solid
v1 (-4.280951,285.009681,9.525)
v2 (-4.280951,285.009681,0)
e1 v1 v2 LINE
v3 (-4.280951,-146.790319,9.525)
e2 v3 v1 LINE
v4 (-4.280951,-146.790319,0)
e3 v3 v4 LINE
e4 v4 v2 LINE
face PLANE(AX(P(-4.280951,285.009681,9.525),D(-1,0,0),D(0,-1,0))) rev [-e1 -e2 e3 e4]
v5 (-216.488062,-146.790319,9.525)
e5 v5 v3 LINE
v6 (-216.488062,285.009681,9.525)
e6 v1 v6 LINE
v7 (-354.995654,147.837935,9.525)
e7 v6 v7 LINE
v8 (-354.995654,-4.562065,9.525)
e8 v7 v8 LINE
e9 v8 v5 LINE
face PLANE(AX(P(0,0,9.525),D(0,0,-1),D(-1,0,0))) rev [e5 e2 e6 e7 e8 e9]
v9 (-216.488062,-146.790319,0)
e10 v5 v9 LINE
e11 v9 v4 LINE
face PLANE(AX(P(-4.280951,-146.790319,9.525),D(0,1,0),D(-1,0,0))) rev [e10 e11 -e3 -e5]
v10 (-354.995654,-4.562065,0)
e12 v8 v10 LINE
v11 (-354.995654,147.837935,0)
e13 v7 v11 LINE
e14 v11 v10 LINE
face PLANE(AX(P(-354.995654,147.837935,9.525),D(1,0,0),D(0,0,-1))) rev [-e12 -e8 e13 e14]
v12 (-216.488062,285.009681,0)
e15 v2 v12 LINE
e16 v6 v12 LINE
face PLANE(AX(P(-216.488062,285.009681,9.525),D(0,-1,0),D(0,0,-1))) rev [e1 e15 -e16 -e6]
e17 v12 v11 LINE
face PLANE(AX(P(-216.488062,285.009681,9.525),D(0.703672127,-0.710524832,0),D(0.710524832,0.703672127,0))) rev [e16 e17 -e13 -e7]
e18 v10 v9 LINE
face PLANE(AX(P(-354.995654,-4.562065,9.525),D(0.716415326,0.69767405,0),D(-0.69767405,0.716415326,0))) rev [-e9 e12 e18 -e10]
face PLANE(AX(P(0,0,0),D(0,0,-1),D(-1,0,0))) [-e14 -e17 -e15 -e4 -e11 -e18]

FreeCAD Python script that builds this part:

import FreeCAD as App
import Part
import Sketcher
Q = App.Units.Quantity

doc = App.newDocument("Part")
body = doc.addObject("PartDesign::Body", "Body")

# Sketch on XY plane
sketch1 = body.newObject("Sketcher::SketchObject", "Sketch")
sketch1.AttachmentSupport = (doc.getObject("XY_Plane"), [""])
sketch1.MapMode = "FlatFace"
sketch1.addGeometry([
    Part.LineSegment(App.Vector(-216.488062, -146.790319, 0), App.Vector(-4.280951, -146.790319, 0)),  # 0
    Part.LineSegment(App.Vector(-4.280951, -146.790319, 0), App.Vector(-4.280951, 285.009681, 0)),  # 1
    Part.LineSegment(App.Vector(-4.280951, 285.009681, 0), App.Vector(-216.488062, 285.009681, 0)),  # 2
    Part.LineSegment(App.Vector(-216.488062, 285.009681, 0), App.Vector(-354.995654, 147.837935, 0)),  # 3
    Part.LineSegment(App.Vector(-354.995654, 147.837935, 0), App.Vector(-354.995654, -4.562065, 0)),  # 4
    Part.LineSegment(App.Vector(-354.995654, -4.562065, 0), App.Vector(-216.488062, -146.790319, 0)),  # 5
], False)
sketch1.addConstraint([
    Sketcher.Constraint("Coincident", 0, 2, 1, 1),
    Sketcher.Constraint("Coincident", 1, 2, 2, 1),
    Sketcher.Constraint("Coincident", 2, 2, 3, 1),
    Sketcher.Constraint("Coincident", 3, 2, 4, 1),
    Sketcher.Constraint("Coincident", 4, 2, 5, 1),
    Sketcher.Constraint("Coincident", 5, 2, 0, 1),
    Sketcher.Constraint("Horizontal", 0),
    Sketcher.Constraint("Vertical", 1),
    Sketcher.Constraint("Horizontal", 2),
    Sketcher.Constraint("Vertical", 4),
    Sketcher.Constraint("Vertical", 2, 2, 5, 2),
    Sketcher.Constraint("DistanceY", 1, 1, 1, 2, Q("17 in")),
    Sketcher.Constraint("DistanceY", 4, 2, 4, 1, Q("6 in")),
    Sketcher.Constraint("DistanceX", 0, 1, 0, 2, 212.207111),
    Sketcher.Constraint("Distance", 3, 194.937018),
    Sketcher.Constraint("DistanceX", 0, 2, -1, 1, 4.280951),
    Sketcher.Constraint("DistanceY", 0, 2, -1, 1, 146.790319),
    Sketcher.Constraint("Distance", 5, 198.527654),
])
pad1 = body.newObject("PartDesign::Pad", "Pad")
pad1.Profile = sketch1
pad1.Length = Q("0.375 in")

doc.recompute()
